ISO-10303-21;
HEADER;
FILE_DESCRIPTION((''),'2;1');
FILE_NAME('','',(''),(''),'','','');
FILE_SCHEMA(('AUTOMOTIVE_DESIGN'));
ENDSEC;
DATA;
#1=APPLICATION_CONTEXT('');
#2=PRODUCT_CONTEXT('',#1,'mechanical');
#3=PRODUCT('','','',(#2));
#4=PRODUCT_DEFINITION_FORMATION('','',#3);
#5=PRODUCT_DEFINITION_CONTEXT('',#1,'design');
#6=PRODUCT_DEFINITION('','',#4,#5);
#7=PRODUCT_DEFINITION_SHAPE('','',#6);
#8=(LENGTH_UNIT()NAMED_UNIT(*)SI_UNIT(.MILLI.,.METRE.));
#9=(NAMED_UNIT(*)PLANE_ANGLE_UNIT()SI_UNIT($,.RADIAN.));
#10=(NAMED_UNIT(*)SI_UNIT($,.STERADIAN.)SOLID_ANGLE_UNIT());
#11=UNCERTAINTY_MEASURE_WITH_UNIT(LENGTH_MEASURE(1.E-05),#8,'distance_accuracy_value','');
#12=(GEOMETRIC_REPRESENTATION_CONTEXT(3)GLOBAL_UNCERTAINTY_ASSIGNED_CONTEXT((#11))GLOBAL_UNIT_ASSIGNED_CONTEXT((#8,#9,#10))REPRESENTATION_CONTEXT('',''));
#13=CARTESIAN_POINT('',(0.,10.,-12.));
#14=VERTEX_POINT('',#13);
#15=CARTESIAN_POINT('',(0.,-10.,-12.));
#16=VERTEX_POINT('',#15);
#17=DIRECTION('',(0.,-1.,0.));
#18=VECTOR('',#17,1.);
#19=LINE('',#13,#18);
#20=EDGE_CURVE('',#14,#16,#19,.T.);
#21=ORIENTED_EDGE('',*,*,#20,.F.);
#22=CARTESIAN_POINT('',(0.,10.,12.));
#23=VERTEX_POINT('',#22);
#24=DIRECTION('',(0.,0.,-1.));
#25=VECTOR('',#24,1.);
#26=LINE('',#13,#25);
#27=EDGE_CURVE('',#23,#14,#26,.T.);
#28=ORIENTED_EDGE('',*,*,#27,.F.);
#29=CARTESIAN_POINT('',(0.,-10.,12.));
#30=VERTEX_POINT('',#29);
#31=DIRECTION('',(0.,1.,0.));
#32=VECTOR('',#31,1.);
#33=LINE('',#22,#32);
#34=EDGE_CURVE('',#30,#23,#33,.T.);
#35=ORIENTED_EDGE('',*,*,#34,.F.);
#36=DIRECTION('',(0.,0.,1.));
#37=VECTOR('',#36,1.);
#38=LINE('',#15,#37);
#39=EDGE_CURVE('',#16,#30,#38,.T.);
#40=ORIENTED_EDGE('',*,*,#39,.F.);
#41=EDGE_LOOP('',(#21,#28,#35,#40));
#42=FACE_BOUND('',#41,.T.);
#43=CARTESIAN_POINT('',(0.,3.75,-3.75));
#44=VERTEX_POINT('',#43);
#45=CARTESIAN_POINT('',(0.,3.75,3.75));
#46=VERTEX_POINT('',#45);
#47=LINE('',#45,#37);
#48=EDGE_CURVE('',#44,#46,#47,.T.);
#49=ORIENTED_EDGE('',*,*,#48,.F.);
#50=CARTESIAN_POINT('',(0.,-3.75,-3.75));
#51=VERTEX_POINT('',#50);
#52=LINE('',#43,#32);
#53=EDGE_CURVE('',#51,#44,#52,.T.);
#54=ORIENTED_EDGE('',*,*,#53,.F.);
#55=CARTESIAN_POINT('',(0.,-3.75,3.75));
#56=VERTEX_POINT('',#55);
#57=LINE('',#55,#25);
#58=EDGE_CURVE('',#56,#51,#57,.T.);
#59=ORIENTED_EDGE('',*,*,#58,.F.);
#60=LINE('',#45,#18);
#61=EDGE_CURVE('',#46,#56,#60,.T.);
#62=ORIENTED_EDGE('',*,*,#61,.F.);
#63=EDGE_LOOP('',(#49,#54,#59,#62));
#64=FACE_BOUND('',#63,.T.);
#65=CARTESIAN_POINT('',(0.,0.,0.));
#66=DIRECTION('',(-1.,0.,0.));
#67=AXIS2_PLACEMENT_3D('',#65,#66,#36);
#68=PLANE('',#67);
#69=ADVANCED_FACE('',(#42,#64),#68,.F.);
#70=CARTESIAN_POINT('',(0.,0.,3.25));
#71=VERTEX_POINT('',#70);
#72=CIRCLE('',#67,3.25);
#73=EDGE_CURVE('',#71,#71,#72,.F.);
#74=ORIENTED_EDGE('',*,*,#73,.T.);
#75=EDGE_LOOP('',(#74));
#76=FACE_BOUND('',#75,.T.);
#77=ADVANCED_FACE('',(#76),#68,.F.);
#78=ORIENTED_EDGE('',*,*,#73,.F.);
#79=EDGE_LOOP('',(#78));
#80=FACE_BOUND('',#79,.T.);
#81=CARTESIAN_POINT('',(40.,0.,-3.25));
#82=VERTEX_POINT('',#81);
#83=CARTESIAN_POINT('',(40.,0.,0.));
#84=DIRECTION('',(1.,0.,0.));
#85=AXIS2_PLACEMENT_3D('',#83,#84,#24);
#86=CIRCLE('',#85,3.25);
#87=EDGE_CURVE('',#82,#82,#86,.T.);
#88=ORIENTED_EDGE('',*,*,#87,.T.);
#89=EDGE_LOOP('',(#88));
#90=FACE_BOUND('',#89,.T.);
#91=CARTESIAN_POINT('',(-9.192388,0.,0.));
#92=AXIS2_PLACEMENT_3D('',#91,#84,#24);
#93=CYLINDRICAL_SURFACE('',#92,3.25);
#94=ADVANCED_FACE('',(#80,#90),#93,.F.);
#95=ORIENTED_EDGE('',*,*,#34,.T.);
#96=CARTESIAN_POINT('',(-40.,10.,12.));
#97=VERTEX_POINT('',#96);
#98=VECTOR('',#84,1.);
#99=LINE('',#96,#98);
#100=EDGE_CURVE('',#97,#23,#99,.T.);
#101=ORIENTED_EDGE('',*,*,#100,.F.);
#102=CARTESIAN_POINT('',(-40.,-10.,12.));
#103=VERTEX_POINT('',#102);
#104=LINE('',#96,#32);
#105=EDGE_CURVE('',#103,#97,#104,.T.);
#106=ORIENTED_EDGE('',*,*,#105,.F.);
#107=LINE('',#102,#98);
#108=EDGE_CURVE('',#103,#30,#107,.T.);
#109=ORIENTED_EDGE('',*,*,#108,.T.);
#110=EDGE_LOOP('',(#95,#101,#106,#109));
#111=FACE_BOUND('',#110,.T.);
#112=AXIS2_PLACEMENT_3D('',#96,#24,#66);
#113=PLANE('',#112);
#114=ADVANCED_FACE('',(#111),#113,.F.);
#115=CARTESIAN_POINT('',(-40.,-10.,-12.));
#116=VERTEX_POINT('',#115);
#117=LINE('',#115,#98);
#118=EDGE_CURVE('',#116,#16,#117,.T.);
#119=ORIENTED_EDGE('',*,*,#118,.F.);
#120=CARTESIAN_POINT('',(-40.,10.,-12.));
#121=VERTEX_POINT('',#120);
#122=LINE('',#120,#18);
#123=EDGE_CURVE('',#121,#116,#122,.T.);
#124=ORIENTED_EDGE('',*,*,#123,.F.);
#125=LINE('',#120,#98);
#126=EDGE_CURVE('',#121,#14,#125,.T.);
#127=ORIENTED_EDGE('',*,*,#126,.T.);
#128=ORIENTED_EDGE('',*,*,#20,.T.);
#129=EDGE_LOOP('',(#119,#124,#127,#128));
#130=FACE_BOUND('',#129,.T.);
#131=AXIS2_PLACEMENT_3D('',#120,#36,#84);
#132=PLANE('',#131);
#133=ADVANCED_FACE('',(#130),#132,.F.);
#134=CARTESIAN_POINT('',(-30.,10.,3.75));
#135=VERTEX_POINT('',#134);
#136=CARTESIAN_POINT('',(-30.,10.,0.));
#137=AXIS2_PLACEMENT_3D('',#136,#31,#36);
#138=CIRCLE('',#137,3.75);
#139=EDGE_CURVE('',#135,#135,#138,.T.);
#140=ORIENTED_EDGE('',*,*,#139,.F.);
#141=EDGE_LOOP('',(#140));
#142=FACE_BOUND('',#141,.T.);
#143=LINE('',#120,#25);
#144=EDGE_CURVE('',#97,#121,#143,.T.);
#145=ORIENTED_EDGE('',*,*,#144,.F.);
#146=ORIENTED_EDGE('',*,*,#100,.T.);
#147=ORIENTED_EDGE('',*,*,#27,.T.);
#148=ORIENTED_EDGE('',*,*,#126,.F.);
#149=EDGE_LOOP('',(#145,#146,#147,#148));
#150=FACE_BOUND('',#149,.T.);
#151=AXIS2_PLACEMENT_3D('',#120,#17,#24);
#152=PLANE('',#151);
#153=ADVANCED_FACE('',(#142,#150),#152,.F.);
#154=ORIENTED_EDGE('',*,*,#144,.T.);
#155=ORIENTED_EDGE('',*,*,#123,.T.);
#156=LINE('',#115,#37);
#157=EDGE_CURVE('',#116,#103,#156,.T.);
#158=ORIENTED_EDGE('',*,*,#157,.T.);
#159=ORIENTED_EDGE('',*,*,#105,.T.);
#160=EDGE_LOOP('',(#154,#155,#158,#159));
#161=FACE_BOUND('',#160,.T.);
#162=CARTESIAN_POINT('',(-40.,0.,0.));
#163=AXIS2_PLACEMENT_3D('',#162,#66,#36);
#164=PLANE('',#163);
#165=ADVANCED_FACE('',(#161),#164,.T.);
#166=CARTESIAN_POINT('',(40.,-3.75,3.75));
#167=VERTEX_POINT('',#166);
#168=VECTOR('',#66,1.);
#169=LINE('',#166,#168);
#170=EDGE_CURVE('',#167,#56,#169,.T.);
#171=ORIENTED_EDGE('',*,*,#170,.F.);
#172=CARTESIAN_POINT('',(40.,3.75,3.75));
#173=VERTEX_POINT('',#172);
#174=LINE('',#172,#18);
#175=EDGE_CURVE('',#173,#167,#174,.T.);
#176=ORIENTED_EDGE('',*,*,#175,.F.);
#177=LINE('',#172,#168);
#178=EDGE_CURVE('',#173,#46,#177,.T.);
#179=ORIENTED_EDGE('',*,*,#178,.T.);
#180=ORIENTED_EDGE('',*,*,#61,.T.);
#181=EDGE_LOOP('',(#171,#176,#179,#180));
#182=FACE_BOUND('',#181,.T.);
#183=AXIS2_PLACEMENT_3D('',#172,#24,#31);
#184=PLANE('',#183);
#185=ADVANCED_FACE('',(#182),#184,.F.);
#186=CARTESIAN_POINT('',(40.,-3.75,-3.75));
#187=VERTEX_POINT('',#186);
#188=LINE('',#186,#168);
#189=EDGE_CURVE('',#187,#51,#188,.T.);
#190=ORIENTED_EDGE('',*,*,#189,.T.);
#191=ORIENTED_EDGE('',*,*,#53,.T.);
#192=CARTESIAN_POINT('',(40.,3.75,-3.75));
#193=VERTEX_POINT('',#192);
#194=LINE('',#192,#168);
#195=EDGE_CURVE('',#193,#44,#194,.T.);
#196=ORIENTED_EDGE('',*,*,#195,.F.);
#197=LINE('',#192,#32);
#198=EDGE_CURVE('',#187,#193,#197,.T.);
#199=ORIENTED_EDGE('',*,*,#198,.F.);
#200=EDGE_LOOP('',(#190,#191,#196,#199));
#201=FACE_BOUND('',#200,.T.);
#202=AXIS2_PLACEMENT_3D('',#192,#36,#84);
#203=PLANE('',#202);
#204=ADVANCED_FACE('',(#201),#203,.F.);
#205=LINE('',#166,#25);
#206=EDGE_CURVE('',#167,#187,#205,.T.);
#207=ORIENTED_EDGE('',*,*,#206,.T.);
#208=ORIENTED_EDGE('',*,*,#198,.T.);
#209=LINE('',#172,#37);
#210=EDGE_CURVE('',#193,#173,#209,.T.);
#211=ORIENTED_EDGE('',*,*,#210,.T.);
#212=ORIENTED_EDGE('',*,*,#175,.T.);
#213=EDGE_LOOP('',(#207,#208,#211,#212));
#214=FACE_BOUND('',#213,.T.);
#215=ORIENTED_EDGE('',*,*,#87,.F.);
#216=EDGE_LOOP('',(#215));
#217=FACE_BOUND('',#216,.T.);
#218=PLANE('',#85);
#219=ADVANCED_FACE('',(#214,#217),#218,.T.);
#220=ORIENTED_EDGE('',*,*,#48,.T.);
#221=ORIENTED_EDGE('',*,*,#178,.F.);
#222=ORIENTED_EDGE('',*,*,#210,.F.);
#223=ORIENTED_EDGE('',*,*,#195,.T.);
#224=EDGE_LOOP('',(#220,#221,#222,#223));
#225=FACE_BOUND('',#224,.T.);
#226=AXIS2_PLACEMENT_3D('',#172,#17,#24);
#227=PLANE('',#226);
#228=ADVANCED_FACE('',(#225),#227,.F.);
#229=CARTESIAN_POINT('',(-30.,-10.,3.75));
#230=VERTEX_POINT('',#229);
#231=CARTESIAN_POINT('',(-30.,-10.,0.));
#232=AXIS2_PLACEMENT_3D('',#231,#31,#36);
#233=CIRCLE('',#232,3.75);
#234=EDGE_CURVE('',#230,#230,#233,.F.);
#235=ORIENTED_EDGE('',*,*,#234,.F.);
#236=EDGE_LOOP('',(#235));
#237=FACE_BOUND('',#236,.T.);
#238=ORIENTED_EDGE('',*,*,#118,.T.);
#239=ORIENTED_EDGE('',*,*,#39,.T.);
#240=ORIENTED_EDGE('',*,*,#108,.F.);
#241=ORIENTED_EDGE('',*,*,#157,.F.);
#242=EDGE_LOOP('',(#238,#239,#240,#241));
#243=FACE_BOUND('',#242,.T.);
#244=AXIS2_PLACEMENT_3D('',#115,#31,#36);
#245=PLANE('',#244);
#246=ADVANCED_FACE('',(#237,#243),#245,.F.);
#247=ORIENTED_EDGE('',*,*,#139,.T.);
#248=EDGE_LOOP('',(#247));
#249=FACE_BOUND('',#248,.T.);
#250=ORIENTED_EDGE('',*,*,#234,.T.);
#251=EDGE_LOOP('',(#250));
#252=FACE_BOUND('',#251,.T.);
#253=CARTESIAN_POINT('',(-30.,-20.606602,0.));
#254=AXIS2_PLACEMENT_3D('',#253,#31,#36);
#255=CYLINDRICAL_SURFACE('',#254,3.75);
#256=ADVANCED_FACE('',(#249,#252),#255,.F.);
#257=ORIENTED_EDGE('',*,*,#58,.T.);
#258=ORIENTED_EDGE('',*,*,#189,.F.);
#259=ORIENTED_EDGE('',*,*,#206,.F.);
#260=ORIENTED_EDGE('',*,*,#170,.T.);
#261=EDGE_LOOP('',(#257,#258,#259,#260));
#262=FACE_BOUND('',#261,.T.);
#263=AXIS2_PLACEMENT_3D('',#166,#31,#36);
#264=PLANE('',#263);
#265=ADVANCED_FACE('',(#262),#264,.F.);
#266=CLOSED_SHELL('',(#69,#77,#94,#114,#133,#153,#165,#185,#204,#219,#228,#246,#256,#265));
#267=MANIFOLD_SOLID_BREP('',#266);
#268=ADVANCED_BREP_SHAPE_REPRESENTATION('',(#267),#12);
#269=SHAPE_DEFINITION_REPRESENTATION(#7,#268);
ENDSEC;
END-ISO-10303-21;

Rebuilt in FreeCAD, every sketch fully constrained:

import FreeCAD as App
import Part
import Sketcher

V = App.Vector
Q = App.Units.Quantity


def add_polygon(sketch, points):
    """Adds a closed chain of lines whose ends are joined by coincident constraints."""
    first, n = sketch.GeometryCount, len(points)
    for a, b in zip(points, points[1:] + points[:1]):
        sketch.addGeometry(Part.LineSegment(App.Vector(*a, 0), App.Vector(*b, 0)), False)
    for i in range(n):
        sketch.addConstraint(Sketcher.Constraint("Coincident", first + i, 2, first + (i + 1) % n, 1))

doc = App.newDocument("Part")
params = doc.addObject("Spreadsheet::Sheet", "Params")
for row, (alias, value) in enumerate([
    ("sketch1_width", "7.5 mm"),
    ("pad1_length", "40 mm"),
    ("sketch2_width", "20 mm"),
    ("sketch2_height", "24 mm"),
    ("pad2_length", "40 mm"),
    ("sketch3_diameter", "7.5 mm"),
    ("pocket1_length", "20 mm"),
    ("sketch4_diameter", "6.5 mm"),
    ("pocket2_length", "40 mm"),
], start=1):
    params.set(f"A{row}", alias)
    params.set(f"B{row}", "=" + value)
    params.setAlias(f"B{row}", alias)

body = doc.addObject("PartDesign::Body", "Body")

sketch1 = doc.addObject("Sketcher::SketchObject", "Sketch")
body.addObject(sketch1)
sketch1.AttachmentSupport = (doc.YZ_Plane, [""])
sketch1.MapMode = "FlatFace"
add_polygon(sketch1, [(4, 4), (-4, 4), (-4, -4), (4, -4)])
sketch1.addConstraint(Sketcher.Constraint("Horizontal", 0))
sketch1.addConstraint(Sketcher.Constraint("Vertical", 1))
sketch1.addConstraint(Sketcher.Constraint("Horizontal", 2))
sketch1.addConstraint(Sketcher.Constraint("Vertical", 3))
sketch1.addConstraint(Sketcher.Constraint("Symmetric", 0, 2, 2, 2, -1, 1))
sketch1.addConstraint(Sketcher.Constraint("Equal", 2, 1))
sketch1.addConstraint(Sketcher.Constraint("DistanceX", 0, 2, 0, 1, Q("7.5 mm")))
sketch1.setExpression("Constraints[10]", "Params.sketch1_width")
pad1 = doc.addObject("PartDesign::Pad", "Pad")
body.addObject(pad1)
pad1.Profile = sketch1
pad1.setExpression("Length", "Params.pad1_length")

sketch2 = doc.addObject("Sketcher::SketchObject", "Sketch001")
body.addObject(sketch2)
sketch2.AttachmentSupport = (doc.YZ_Plane, [""])
sketch2.MapMode = "FlatFace"
add_polygon(sketch2, [(10, -12), (-10, -12), (-10, 12), (10, 12)])
sketch2.addConstraint(Sketcher.Constraint("Horizontal", 0))
sketch2.addConstraint(Sketcher.Constraint("Vertical", 1))
sketch2.addConstraint(Sketcher.Constraint("Horizontal", 2))
sketch2.addConstraint(Sketcher.Constraint("Vertical", 3))
sketch2.addConstraint(Sketcher.Constraint("Symmetric", 0, 2, 2, 2, -1, 1))
sketch2.addConstraint(Sketcher.Constraint("DistanceX", 0, 2, 0, 1, Q("20 mm")))
sketch2.addConstraint(Sketcher.Constraint("DistanceY", 1, 1, 1, 2, Q("24 mm")))
sketch2.setExpression("Constraints[9]", "Params.sketch2_width")
sketch2.setExpression("Constraints[10]", "Params.sketch2_height")
pad2 = doc.addObject("PartDesign::Pad", "Pad001")
body.addObject(pad2)
pad2.Profile = sketch2
pad2.setExpression("Length", "Params.pad2_length")
pad2.Reversed = True

sketch3 = doc.addObject("Sketcher::SketchObject", "Sketch002")
body.addObject(sketch3)
sketch3.AttachmentSupport = (doc.XZ_Plane, [""])
sketch3.MapMode = "FlatFace"
sketch3.AttachmentOffset = App.Placement(V(0, 0, -10), App.Rotation())
sketch3.addGeometry(Part.Circle(V(-30, 0, 0), V(0, 0, 1), 3.8), False)
sketch3.addConstraint(Sketcher.Constraint("PointOnObject", 0, 3, -1))
sketch3.addConstraint(Sketcher.Constraint("Diameter", 0, Q("7.5 mm")))
sketch3.addConstraint(Sketcher.Constraint("DistanceX", 0, 3, -1, 1, Q("30 mm")))
sketch3.setExpression("Constraints[1]", "Params.sketch3_diameter")
pocket1 = doc.addObject("PartDesign::Pocket", "Pocket")
body.addObject(pocket1)
pocket1.Profile = sketch3
pocket1.setExpression("Length", "Params.pocket1_length")
pocket1.Reversed = True

sketch4 = doc.addObject("Sketcher::SketchObject", "Sketch003")
body.addObject(sketch4)
sketch4.AttachmentSupport = (doc.YZ_Plane, [""])
sketch4.MapMode = "FlatFace"
sketch4.AttachmentOffset = App.Placement(V(0, 0, 40), App.Rotation())
sketch4.addGeometry(Part.Circle(V(0, 0, 0), V(0, 0, 1), 3.2), False)
sketch4.addConstraint(Sketcher.Constraint("Coincident", 0, 3, -1, 1))
sketch4.addConstraint(Sketcher.Constraint("Diameter", 0, Q("6.5 mm")))
sketch4.setExpression("Constraints[1]", "Params.sketch4_diameter")
pocket2 = doc.addObject("PartDesign::Pocket", "Pocket001")
body.addObject(pocket2)
pocket2.Profile = sketch4
pocket2.setExpression("Length", "Params.pocket2_length")

doc.recompute()
